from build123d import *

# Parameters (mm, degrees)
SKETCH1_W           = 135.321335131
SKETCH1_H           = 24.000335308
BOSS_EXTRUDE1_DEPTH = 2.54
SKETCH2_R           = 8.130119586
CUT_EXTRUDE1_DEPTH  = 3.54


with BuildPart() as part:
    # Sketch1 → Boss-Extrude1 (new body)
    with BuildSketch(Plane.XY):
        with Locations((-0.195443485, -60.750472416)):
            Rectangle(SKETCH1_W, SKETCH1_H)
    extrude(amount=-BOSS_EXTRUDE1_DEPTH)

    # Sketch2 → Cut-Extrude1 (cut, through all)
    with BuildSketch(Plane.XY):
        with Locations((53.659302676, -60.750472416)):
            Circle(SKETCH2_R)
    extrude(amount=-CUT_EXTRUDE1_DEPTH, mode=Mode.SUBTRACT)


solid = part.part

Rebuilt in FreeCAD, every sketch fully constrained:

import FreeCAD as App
import Part
import Sketcher

V = App.Vector
Q = App.Units.Quantity


def add_polygon(sketch, points):
    """Adds a closed chain of lines whose ends are joined by coincident constraints."""
    first, n = sketch.GeometryCount, len(points)
    for a, b in zip(points, points[1:] + points[:1]):
        sketch.addGeometry(Part.LineSegment(App.Vector(*a, 0), App.Vector(*b, 0)), False)
    for i in range(n):
        sketch.addConstraint(Sketcher.Constraint("Coincident", first + i, 2, first + (i + 1) % n, 1))

doc = App.newDocument("Part")
body = doc.addObject("PartDesign::Body", "Body")

sketch1 = body.newObject("Sketcher::SketchObject", "Sketch")
sketch1.AttachmentSupport = (doc.getObject("XY_Plane"), [""])
sketch1.MapMode = "FlatFace"
add_polygon(sketch1, [(-67.856111, -48.750305), (-67.856111, -72.75064), (67.465224, -72.75064), (67.465224, -48.750305)])
sketch1.addConstraint([
    Sketcher.Constraint("Vertical", 0),
    Sketcher.Constraint("Horizontal", 1),
    Sketcher.Constraint("Vertical", 2),
    Sketcher.Constraint("Horizontal", 3),
    Sketcher.Constraint("DistanceX", 1, 1, 1, 2, Q("135.321335 mm")),
    Sketcher.Constraint("DistanceY", 0, 2, 0, 1, Q("24.000335 mm")),
    Sketcher.Constraint("DistanceX", 0, 2, -1, 1, Q("67.856111 mm")),
    Sketcher.Constraint("DistanceY", 0, 2, -1, 1, Q("72.75064 mm")),
])
pad1 = body.newObject("PartDesign::Pad", "Pad")
pad1.Profile = sketch1
pad1.Length = Q("0.1 in")
pad1.Reversed = True

sketch2 = body.newObject("Sketcher::SketchObject", "Sketch001")
sketch2.AttachmentSupport = (doc.getObject("XY_Plane"), [""])
sketch2.MapMode = "FlatFace"
sketch2.addGeometry(Part.Circle(V(53.659303, -60.750472, 0), V(0, 0, 1), 8.13012), False)
sketch2.addConstraint([
    Sketcher.Constraint("Diameter", 0, Q("16.260239 mm")),
    Sketcher.Constraint("DistanceX", -1, 1, 0, 3, Q("53.659303 mm")),
    Sketcher.Constraint("DistanceY", 0, 3, -1, 1, Q("60.750472 mm")),
])
pocket1 = body.newObject("PartDesign::Pocket", "Pocket")
pocket1.Profile = sketch2
pocket1.Type = "ThroughAll"

doc.recompute()
